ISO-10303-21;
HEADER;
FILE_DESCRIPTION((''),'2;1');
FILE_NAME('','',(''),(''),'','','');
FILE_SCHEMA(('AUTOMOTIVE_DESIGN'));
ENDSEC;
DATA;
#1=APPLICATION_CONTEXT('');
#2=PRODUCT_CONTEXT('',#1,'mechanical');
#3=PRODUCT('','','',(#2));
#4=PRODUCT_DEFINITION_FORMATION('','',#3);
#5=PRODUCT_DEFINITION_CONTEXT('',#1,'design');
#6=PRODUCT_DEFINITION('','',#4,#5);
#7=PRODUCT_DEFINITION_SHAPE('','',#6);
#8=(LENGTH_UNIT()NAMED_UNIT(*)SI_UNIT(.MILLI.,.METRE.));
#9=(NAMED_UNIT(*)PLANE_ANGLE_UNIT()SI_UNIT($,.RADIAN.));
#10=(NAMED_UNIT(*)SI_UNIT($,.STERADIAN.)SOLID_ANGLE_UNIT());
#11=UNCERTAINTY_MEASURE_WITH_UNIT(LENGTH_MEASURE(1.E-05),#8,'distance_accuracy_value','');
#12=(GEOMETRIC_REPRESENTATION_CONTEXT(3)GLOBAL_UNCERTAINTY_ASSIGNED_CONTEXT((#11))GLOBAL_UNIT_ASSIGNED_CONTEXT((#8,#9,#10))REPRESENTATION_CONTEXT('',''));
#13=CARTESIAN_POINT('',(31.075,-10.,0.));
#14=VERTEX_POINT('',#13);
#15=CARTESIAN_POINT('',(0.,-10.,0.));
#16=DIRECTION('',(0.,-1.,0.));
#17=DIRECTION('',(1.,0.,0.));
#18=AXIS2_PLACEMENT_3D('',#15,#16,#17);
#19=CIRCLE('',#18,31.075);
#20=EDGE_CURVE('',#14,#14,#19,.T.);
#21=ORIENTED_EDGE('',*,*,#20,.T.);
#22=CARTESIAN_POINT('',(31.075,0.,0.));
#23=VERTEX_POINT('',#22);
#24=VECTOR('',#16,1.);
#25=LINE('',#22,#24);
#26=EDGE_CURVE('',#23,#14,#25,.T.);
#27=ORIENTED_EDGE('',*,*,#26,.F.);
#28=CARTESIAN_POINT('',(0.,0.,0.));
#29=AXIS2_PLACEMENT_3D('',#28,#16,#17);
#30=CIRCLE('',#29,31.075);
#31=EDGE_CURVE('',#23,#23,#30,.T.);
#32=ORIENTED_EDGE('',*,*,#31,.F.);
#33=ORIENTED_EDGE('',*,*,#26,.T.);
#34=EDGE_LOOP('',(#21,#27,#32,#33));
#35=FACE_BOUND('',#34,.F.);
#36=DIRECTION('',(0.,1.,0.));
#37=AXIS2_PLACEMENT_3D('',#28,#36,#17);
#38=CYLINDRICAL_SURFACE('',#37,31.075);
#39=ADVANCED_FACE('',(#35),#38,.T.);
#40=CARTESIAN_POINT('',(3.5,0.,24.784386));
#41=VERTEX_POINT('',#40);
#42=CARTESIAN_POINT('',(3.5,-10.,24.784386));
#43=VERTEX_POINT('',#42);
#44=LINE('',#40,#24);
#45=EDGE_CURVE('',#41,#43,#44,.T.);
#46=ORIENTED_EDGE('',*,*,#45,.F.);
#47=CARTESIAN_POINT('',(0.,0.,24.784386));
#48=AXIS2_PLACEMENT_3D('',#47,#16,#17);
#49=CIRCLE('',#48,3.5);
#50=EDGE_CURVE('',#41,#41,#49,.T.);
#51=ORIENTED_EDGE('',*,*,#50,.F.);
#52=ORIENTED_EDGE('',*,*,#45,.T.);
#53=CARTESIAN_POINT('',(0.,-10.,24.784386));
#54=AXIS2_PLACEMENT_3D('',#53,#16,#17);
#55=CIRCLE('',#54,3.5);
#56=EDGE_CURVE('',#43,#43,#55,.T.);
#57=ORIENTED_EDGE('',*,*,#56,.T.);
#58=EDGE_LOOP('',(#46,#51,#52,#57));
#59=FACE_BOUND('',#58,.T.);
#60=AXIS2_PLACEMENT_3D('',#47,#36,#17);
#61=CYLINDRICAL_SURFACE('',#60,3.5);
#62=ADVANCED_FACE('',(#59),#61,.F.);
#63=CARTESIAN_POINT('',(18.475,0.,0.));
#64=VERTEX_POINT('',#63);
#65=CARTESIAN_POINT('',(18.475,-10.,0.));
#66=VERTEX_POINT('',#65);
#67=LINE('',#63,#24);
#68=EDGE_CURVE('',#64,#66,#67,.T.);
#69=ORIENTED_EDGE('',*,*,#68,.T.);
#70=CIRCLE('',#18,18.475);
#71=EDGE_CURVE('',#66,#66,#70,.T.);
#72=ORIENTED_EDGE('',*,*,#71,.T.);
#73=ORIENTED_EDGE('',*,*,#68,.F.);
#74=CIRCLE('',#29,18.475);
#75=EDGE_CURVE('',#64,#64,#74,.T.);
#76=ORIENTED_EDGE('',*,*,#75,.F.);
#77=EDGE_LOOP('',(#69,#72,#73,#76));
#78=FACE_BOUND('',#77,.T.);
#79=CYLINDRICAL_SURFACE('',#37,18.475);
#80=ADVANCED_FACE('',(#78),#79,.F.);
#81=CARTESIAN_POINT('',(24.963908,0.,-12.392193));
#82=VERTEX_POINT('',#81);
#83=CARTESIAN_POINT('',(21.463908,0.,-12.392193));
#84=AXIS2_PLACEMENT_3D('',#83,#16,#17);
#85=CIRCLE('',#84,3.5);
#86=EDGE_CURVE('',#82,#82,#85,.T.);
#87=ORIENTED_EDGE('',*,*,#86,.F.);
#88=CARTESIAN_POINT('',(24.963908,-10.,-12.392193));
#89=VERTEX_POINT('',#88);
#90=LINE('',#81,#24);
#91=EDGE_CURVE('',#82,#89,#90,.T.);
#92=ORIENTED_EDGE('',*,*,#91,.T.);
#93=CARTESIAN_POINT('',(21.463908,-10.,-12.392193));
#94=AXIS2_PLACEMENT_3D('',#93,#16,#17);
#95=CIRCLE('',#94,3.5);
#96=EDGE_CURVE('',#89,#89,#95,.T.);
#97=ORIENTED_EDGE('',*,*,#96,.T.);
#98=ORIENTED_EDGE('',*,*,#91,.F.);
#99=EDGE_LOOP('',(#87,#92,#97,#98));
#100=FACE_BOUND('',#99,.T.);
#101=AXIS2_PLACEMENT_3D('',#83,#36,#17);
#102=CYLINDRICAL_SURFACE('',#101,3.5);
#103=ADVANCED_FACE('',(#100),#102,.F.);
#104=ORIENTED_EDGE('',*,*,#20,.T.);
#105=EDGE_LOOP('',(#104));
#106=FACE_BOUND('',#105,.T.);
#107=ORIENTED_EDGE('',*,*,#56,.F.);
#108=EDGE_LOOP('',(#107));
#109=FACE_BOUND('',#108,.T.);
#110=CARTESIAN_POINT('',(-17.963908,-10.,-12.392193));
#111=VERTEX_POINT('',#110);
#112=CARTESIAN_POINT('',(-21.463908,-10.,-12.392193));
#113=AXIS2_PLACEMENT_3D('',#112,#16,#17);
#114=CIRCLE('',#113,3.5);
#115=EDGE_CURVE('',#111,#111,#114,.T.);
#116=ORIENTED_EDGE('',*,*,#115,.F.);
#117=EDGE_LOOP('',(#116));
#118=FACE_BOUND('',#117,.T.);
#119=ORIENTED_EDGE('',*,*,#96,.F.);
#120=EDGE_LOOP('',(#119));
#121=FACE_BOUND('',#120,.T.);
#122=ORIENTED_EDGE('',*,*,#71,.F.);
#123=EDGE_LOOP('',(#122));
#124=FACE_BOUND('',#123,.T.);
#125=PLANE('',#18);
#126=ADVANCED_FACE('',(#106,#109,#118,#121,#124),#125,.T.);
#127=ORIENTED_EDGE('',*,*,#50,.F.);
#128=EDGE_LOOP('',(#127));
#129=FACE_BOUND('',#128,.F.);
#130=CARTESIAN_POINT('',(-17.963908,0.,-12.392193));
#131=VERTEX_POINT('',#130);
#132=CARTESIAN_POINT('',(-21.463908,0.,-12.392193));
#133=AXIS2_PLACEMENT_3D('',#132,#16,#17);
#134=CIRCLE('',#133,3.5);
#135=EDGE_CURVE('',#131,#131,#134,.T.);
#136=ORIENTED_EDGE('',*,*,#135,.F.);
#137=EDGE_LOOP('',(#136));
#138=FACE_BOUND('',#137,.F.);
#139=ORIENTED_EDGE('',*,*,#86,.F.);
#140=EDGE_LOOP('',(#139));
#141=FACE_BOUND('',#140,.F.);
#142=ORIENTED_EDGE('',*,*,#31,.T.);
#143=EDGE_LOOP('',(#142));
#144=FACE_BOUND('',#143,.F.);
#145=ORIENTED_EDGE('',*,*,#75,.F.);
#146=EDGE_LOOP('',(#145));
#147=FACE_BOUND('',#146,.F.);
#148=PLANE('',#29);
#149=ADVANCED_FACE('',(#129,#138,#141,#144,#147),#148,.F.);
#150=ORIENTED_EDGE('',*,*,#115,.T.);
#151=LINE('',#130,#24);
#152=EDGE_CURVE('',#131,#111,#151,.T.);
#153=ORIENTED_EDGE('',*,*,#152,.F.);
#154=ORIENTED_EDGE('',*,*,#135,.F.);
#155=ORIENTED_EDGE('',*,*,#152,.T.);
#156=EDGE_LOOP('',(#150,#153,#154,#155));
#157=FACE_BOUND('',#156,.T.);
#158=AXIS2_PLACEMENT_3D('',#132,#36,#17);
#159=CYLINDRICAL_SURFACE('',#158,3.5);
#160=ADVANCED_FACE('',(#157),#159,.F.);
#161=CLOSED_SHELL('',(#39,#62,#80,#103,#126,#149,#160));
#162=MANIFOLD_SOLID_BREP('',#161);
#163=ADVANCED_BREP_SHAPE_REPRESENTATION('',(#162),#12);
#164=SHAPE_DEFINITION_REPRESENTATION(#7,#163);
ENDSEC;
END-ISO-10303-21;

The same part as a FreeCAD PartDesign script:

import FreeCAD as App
import Part
import Sketcher
from FreeCAD import Vector
Q = App.Units.Quantity

doc = App.newDocument("Part")
params = doc.addObject("Spreadsheet::Sheet", "Params")
for row, (alias, value) in enumerate([
    ("sketch1_diameter", "62.15 mm"),
    ("sketch1_diameter2", "36.95 mm"),
    ("pad1_length", "10 mm"),
    ("sketch2_diameter", "7 mm"),
    ("pocket1_length", "10 mm"),
], start=1):
    params.set(f"A{row}", alias)
    params.set(f"B{row}", "=" + value)
    params.setAlias(f"B{row}", alias)

body = doc.addObject("PartDesign::Body", "Body")

# Sketch on XZ plane
sketch1 = doc.addObject("Sketcher::SketchObject", "Sketch")
body.addObject(sketch1)
sketch1.AttachmentSupport = (doc.XZ_Plane, [""])
sketch1.MapMode = "FlatFace"
sketch1.addGeometry(Part.Circle(Vector(0, 0, 0), Vector(0, 0, 1), 31), False)
sketch1.addGeometry(Part.Circle(Vector(0, 0, 0), Vector(0, 0, 1), 18), False)
sketch1.addConstraint(Sketcher.Constraint("Coincident", 0, 3, -1, 1))
sketch1.addConstraint(Sketcher.Constraint("Coincident", 1, 3, -1, 1))
sketch1.addConstraint(Sketcher.Constraint("Diameter", 0, Q("62.15 mm")))
sketch1.addConstraint(Sketcher.Constraint("Diameter", 1, Q("36.95 mm")))
sketch1.setExpression("Constraints[2]", "Params.sketch1_diameter")
sketch1.setExpression("Constraints[3]", "Params.sketch1_diameter2")
pad1 = doc.addObject("PartDesign::Pad", "Pad")
body.addObject(pad1)
pad1.Profile = sketch1
pad1.setExpression("Length", "Params.pad1_length")

# Sketch on XZ plane
sketch2 = doc.addObject("Sketcher::SketchObject", "Sketch001")
body.addObject(sketch2)
sketch2.AttachmentSupport = (doc.XZ_Plane, [""])
sketch2.MapMode = "FlatFace"
sketch2.addGeometry(Part.Circle(Vector(0, 24.8, 0), Vector(0, 0, 1), 3.5), False)
sketch2.addGeometry(Part.Circle(Vector(21.5, -12.4, 0), Vector(0, 0, 1), 3.5), False)
sketch2.addGeometry(Part.Circle(Vector(-21.5, -12.4, 0), Vector(0, 0, 1), 3.5), False)
sketch2.addConstraint(Sketcher.Constraint("Equal", 0, 1))
sketch2.addConstraint(Sketcher.Constraint("Equal", 1, 2))
sketch2.addConstraint(Sketcher.Constraint("Symmetric", 1, 3, 2, 3, -2))
sketch2.addConstraint(Sketcher.Constraint("PointOnObject", 0, 3, -2))
sketch2.addConstraint(Sketcher.Constraint("Diameter", 0, Q("7 mm")))
sketch2.addConstraint(Sketcher.Constraint("DistanceX", -1, 1, 1, 3, Q("21.463908 mm")))
sketch2.addConstraint(Sketcher.Constraint("DistanceY", 1, 3, 0, 3, Q("37.176579 mm")))
sketch2.addConstraint(Sketcher.Constraint("DistanceY", -1, 1, 0, 3, Q("24.784386 mm")))
sketch2.setExpression("Constraints[4]", "Params.sketch2_diameter")
pocket1 = doc.addObject("PartDesign::Pocket", "Pocket")
body.addObject(pocket1)
pocket1.Profile = sketch2
pocket1.setExpression("Length", "Params.pocket1_length")
pocket1.Reversed = True

doc.recompute()
